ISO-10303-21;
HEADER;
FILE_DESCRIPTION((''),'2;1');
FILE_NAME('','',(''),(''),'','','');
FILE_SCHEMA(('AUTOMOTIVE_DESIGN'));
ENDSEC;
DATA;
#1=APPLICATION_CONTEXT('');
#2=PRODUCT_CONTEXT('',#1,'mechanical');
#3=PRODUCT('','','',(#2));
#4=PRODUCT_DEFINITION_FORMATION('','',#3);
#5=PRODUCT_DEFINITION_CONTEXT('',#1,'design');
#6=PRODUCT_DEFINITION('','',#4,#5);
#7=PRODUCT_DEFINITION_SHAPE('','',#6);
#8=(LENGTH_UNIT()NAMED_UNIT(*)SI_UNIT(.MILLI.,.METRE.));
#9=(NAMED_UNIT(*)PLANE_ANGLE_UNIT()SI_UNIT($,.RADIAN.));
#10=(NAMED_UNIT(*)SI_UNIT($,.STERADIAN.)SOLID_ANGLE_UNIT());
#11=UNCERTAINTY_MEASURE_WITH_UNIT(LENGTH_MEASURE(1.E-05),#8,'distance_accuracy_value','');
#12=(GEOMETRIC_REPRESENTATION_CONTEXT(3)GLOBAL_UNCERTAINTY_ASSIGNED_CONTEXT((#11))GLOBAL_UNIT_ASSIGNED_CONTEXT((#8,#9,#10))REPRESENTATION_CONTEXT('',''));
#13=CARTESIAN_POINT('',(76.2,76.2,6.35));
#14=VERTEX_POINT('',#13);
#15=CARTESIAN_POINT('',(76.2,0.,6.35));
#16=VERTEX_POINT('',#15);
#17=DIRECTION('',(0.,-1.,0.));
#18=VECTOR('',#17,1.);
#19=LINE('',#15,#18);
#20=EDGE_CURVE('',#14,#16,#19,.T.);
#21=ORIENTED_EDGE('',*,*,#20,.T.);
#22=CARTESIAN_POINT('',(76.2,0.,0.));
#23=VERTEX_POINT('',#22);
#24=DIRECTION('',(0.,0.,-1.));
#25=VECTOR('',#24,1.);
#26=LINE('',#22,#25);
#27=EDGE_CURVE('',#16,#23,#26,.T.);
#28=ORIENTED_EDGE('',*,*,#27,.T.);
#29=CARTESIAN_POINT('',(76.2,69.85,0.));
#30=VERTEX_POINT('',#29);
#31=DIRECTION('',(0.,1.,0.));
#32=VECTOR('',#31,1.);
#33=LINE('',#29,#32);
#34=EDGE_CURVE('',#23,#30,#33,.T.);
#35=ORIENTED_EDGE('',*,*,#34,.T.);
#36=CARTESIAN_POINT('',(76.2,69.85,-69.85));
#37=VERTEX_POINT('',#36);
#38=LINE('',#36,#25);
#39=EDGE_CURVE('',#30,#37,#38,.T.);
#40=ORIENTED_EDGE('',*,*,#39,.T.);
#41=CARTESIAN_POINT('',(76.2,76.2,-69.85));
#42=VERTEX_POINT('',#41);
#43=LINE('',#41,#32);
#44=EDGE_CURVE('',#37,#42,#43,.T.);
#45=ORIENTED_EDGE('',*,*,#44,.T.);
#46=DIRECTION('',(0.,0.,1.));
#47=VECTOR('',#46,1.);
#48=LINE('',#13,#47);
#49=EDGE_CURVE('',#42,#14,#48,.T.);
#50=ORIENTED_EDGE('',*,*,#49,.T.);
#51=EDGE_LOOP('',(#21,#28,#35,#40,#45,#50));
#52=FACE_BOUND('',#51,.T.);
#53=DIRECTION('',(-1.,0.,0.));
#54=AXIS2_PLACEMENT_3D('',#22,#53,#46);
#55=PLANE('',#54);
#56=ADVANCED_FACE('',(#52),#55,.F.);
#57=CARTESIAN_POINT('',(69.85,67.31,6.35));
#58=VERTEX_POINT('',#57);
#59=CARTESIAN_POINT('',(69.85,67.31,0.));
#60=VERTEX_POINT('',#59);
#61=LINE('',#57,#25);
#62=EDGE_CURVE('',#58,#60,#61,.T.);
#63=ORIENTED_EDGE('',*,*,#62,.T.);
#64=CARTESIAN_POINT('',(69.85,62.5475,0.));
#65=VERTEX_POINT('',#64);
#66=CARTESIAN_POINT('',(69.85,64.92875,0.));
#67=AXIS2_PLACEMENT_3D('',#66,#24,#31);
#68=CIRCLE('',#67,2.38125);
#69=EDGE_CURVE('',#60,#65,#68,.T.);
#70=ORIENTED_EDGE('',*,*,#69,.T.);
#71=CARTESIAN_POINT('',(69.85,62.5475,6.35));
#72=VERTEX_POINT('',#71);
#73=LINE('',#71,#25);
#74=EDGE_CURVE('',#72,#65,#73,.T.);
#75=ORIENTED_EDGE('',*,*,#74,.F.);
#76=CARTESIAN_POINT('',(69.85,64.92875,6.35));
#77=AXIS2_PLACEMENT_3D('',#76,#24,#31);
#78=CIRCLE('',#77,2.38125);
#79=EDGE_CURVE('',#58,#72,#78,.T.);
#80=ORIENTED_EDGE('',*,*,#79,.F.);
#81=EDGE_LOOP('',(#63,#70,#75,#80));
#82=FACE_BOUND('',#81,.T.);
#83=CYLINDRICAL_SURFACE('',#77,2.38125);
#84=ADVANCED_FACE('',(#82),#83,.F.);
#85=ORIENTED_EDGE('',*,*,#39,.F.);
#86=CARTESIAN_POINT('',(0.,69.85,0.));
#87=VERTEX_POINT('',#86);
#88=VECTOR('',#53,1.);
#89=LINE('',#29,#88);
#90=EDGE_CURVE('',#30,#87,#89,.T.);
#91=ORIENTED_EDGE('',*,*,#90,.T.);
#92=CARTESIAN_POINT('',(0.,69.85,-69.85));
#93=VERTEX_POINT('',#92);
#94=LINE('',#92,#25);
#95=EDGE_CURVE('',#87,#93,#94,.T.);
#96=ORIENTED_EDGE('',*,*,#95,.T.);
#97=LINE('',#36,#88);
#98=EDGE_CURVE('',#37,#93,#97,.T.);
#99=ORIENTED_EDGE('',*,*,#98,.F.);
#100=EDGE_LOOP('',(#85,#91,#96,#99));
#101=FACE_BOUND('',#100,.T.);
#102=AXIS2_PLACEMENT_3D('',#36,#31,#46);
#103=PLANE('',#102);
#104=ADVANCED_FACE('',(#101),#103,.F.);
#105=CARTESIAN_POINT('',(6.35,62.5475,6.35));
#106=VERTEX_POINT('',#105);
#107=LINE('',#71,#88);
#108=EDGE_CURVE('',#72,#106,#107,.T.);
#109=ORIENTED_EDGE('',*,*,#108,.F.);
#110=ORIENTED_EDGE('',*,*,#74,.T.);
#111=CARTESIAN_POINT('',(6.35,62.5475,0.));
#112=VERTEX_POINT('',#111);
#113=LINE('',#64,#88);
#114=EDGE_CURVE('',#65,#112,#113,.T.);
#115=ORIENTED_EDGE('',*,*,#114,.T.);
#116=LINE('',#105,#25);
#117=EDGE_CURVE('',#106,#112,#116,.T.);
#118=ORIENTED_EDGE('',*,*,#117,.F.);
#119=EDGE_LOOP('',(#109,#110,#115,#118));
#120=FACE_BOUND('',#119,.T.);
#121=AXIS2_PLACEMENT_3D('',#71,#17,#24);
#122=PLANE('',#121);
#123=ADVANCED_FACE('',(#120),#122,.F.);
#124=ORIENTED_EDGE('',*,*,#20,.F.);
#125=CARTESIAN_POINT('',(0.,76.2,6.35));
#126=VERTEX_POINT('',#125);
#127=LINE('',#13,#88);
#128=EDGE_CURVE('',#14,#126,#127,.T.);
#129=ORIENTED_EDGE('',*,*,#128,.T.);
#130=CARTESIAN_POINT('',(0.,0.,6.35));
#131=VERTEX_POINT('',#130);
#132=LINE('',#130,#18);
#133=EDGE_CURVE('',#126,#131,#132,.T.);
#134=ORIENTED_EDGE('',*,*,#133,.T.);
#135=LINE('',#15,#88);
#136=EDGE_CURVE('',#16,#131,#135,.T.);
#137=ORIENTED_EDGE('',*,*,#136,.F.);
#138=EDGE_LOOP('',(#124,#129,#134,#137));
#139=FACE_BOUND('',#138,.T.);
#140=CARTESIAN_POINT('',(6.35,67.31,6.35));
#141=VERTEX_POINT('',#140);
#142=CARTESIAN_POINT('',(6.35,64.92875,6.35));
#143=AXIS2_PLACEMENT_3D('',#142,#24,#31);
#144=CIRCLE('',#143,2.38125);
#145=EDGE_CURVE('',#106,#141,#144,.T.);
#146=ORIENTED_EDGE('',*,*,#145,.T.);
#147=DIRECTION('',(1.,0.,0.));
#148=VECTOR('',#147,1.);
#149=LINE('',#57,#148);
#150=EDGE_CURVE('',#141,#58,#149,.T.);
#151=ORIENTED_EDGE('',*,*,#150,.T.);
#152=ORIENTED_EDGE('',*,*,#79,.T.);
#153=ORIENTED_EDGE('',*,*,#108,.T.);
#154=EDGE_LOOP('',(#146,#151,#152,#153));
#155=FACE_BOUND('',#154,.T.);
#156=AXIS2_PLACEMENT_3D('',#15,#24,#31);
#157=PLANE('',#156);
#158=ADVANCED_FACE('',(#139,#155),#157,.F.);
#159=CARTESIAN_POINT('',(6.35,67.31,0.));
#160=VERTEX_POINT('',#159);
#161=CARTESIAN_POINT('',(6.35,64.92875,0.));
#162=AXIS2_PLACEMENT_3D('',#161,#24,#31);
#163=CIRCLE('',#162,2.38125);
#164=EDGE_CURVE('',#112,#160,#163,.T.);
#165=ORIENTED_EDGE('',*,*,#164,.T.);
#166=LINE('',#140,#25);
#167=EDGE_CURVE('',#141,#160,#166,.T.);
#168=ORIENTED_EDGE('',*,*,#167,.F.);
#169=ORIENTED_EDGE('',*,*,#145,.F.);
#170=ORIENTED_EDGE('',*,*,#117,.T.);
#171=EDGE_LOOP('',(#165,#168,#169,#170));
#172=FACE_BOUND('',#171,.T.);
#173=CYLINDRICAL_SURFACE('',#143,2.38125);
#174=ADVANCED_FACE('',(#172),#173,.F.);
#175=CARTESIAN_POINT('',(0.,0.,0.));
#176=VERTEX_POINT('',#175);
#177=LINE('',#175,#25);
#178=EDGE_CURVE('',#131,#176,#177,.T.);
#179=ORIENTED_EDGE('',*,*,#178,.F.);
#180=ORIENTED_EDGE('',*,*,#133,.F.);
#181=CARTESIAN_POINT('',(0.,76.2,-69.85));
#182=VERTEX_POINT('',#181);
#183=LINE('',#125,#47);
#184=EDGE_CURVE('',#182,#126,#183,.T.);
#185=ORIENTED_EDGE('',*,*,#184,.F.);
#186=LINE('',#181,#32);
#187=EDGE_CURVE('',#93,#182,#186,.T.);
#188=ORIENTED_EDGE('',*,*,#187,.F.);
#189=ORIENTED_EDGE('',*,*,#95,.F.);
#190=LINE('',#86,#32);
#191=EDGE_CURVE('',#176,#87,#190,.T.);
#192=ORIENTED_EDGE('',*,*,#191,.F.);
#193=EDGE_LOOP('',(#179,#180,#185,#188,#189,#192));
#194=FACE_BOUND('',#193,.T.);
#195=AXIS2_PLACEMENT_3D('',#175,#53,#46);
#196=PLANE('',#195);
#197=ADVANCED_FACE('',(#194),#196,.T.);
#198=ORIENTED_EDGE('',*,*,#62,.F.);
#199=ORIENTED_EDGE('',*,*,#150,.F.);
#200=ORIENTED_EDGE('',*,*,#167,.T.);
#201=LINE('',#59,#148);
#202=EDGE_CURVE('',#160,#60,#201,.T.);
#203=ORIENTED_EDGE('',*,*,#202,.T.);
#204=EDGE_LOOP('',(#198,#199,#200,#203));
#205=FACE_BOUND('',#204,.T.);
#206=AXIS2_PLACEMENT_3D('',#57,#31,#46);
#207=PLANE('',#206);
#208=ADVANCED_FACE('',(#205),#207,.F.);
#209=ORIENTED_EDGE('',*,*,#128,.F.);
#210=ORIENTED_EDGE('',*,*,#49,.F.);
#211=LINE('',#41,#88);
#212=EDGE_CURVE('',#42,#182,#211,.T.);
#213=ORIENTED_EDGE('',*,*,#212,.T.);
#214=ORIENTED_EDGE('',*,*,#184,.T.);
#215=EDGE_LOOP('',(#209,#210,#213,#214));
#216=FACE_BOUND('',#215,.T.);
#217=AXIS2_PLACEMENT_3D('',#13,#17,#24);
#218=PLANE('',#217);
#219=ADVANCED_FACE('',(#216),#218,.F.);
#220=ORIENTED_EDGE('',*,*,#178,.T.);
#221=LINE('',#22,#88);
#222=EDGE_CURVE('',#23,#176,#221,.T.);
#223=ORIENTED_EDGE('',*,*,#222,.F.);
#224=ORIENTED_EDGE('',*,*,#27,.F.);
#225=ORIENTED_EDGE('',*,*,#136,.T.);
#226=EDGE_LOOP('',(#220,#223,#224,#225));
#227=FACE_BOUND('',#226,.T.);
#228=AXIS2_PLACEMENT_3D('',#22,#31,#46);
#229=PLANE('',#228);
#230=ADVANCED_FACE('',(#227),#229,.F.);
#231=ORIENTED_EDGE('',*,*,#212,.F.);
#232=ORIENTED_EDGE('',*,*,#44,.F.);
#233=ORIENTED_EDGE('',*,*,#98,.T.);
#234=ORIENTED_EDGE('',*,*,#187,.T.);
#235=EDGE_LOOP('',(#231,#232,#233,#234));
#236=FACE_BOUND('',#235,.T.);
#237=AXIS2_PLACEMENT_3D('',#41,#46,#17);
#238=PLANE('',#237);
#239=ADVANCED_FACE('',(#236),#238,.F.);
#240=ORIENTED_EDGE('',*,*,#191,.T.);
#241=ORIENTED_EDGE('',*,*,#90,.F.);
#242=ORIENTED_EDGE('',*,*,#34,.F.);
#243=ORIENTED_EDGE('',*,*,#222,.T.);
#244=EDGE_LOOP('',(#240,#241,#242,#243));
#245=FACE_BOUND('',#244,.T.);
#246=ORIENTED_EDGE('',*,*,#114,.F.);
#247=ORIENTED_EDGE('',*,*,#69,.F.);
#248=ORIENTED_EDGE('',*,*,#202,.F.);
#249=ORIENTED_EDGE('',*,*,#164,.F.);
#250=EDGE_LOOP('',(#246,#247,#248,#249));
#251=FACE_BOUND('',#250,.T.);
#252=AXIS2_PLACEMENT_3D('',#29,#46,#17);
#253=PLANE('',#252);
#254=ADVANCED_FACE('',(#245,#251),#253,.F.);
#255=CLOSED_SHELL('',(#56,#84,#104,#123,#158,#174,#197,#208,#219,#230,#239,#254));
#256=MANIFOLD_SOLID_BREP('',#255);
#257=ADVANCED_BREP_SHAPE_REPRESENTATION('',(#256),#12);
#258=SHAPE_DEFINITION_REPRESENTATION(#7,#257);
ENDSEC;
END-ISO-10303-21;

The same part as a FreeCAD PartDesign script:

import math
import FreeCAD as App
import Part
import Sketcher

V = App.Vector
Q = App.Units.Quantity

doc = App.newDocument("Part")
body = doc.addObject("PartDesign::Body", "Body")

sketch1 = body.newObject("Sketcher::SketchObject", "Sketch")
sketch1.AttachmentSupport = (doc.getObject("YZ_Plane"), [""])
sketch1.MapMode = "FlatFace"
sketch1.addGeometry([
    Part.LineSegment(V(76.2, -69.85, 0), V(76.2, 6.35, 0)),
    Part.LineSegment(V(76.2, 6.35, 0), V(0, 6.35, 0)),
    Part.LineSegment(V(0, 6.35, 0), V(0, 0, 0)),
    Part.LineSegment(V(0, 0, 0), V(69.85, 0, 0)),
    Part.LineSegment(V(69.85, 0, 0), V(69.85, -69.85, 0)),
    Part.LineSegment(V(69.85, -69.85, 0), V(76.2, -69.85, 0)),
], False)
sketch1.addConstraint([
    Sketcher.Constraint("Coincident", 0, 2, 1, 1),
    Sketcher.Constraint("Coincident", 1, 2, 2, 1),
    Sketcher.Constraint("Coincident", 2, 2, 3, 1),
    Sketcher.Constraint("Coincident", 3, 2, 4, 1),
    Sketcher.Constraint("Coincident", 4, 2, 5, 1),
    Sketcher.Constraint("Coincident", 5, 2, 0, 1),
    Sketcher.Constraint("Vertical", 0),
    Sketcher.Constraint("Horizontal", 1),
    Sketcher.Constraint("Vertical", 2),
    Sketcher.Constraint("Horizontal", 3),
    Sketcher.Constraint("Vertical", 4),
    Sketcher.Constraint("Horizontal", 5),
    Sketcher.Constraint("Coincident", 2, 2, -1, 1),
    Sketcher.Constraint("Equal", 1, 0),
    Sketcher.Constraint("Equal", 5, 2),
    Sketcher.Constraint("DistanceX", 1, 2, 1, 1, Q("3 in")),
    Sketcher.Constraint("DistanceX", 3, 1, 3, 2, Q("2.75 in")),
])
pad1 = body.newObject("PartDesign::Pad", "Pad")
pad1.Profile = sketch1
pad1.Length = Q("3 in")

sketch2 = body.newObject("Sketcher::SketchObject", "Sketch001")
sketch2.AttachmentSupport = (doc.getObject("XY_Plane"), [""])
sketch2.MapMode = "FlatFace"
sketch2.addGeometry([
    Part.LineSegment(V(6.35, 67.31, 0), V(69.85, 67.31, 0)),
    Part.ArcOfCircle(Part.Circle(V(69.85, 64.92875, 0), V(0, 0, 1), 2.38125), math.radians(-90), math.radians(90)),
    Part.LineSegment(V(69.85, 62.5475, 0), V(6.35, 62.5475, 0)),
    Part.ArcOfCircle(Part.Circle(V(6.35, 64.92875, 0), V(0, 0, 1), 2.38125), math.radians(90), math.radians(270)),
], False)
sketch2.addConstraint([
    Sketcher.Constraint("Tangent", 0, 2, 1, 2),
    Sketcher.Constraint("Tangent", 1, 1, 2, 1),
    Sketcher.Constraint("Tangent", 2, 2, 3, 2),
    Sketcher.Constraint("Tangent", 3, 1, 0, 1),
    Sketcher.Constraint("Horizontal", 0),
    Sketcher.Constraint("Horizontal", 2),
    Sketcher.Constraint("DistanceX", 0, 1, 0, 2, Q("2.5 in")),
    Sketcher.Constraint("Radius", 1, Q("0.09375 in")),
    Sketcher.Constraint("DistanceX", -1, 1, 1, 3, Q("2.75 in")),
    Sketcher.Constraint("DistanceY", -1, 1, 0, 2, Q("2.65 in")),
])
pocket1 = body.newObject("PartDesign::Pocket", "Pocket")
pocket1.Profile = sketch2
pocket1.Type = "ThroughAll"
pocket1.Reversed = True

doc.recompute()
